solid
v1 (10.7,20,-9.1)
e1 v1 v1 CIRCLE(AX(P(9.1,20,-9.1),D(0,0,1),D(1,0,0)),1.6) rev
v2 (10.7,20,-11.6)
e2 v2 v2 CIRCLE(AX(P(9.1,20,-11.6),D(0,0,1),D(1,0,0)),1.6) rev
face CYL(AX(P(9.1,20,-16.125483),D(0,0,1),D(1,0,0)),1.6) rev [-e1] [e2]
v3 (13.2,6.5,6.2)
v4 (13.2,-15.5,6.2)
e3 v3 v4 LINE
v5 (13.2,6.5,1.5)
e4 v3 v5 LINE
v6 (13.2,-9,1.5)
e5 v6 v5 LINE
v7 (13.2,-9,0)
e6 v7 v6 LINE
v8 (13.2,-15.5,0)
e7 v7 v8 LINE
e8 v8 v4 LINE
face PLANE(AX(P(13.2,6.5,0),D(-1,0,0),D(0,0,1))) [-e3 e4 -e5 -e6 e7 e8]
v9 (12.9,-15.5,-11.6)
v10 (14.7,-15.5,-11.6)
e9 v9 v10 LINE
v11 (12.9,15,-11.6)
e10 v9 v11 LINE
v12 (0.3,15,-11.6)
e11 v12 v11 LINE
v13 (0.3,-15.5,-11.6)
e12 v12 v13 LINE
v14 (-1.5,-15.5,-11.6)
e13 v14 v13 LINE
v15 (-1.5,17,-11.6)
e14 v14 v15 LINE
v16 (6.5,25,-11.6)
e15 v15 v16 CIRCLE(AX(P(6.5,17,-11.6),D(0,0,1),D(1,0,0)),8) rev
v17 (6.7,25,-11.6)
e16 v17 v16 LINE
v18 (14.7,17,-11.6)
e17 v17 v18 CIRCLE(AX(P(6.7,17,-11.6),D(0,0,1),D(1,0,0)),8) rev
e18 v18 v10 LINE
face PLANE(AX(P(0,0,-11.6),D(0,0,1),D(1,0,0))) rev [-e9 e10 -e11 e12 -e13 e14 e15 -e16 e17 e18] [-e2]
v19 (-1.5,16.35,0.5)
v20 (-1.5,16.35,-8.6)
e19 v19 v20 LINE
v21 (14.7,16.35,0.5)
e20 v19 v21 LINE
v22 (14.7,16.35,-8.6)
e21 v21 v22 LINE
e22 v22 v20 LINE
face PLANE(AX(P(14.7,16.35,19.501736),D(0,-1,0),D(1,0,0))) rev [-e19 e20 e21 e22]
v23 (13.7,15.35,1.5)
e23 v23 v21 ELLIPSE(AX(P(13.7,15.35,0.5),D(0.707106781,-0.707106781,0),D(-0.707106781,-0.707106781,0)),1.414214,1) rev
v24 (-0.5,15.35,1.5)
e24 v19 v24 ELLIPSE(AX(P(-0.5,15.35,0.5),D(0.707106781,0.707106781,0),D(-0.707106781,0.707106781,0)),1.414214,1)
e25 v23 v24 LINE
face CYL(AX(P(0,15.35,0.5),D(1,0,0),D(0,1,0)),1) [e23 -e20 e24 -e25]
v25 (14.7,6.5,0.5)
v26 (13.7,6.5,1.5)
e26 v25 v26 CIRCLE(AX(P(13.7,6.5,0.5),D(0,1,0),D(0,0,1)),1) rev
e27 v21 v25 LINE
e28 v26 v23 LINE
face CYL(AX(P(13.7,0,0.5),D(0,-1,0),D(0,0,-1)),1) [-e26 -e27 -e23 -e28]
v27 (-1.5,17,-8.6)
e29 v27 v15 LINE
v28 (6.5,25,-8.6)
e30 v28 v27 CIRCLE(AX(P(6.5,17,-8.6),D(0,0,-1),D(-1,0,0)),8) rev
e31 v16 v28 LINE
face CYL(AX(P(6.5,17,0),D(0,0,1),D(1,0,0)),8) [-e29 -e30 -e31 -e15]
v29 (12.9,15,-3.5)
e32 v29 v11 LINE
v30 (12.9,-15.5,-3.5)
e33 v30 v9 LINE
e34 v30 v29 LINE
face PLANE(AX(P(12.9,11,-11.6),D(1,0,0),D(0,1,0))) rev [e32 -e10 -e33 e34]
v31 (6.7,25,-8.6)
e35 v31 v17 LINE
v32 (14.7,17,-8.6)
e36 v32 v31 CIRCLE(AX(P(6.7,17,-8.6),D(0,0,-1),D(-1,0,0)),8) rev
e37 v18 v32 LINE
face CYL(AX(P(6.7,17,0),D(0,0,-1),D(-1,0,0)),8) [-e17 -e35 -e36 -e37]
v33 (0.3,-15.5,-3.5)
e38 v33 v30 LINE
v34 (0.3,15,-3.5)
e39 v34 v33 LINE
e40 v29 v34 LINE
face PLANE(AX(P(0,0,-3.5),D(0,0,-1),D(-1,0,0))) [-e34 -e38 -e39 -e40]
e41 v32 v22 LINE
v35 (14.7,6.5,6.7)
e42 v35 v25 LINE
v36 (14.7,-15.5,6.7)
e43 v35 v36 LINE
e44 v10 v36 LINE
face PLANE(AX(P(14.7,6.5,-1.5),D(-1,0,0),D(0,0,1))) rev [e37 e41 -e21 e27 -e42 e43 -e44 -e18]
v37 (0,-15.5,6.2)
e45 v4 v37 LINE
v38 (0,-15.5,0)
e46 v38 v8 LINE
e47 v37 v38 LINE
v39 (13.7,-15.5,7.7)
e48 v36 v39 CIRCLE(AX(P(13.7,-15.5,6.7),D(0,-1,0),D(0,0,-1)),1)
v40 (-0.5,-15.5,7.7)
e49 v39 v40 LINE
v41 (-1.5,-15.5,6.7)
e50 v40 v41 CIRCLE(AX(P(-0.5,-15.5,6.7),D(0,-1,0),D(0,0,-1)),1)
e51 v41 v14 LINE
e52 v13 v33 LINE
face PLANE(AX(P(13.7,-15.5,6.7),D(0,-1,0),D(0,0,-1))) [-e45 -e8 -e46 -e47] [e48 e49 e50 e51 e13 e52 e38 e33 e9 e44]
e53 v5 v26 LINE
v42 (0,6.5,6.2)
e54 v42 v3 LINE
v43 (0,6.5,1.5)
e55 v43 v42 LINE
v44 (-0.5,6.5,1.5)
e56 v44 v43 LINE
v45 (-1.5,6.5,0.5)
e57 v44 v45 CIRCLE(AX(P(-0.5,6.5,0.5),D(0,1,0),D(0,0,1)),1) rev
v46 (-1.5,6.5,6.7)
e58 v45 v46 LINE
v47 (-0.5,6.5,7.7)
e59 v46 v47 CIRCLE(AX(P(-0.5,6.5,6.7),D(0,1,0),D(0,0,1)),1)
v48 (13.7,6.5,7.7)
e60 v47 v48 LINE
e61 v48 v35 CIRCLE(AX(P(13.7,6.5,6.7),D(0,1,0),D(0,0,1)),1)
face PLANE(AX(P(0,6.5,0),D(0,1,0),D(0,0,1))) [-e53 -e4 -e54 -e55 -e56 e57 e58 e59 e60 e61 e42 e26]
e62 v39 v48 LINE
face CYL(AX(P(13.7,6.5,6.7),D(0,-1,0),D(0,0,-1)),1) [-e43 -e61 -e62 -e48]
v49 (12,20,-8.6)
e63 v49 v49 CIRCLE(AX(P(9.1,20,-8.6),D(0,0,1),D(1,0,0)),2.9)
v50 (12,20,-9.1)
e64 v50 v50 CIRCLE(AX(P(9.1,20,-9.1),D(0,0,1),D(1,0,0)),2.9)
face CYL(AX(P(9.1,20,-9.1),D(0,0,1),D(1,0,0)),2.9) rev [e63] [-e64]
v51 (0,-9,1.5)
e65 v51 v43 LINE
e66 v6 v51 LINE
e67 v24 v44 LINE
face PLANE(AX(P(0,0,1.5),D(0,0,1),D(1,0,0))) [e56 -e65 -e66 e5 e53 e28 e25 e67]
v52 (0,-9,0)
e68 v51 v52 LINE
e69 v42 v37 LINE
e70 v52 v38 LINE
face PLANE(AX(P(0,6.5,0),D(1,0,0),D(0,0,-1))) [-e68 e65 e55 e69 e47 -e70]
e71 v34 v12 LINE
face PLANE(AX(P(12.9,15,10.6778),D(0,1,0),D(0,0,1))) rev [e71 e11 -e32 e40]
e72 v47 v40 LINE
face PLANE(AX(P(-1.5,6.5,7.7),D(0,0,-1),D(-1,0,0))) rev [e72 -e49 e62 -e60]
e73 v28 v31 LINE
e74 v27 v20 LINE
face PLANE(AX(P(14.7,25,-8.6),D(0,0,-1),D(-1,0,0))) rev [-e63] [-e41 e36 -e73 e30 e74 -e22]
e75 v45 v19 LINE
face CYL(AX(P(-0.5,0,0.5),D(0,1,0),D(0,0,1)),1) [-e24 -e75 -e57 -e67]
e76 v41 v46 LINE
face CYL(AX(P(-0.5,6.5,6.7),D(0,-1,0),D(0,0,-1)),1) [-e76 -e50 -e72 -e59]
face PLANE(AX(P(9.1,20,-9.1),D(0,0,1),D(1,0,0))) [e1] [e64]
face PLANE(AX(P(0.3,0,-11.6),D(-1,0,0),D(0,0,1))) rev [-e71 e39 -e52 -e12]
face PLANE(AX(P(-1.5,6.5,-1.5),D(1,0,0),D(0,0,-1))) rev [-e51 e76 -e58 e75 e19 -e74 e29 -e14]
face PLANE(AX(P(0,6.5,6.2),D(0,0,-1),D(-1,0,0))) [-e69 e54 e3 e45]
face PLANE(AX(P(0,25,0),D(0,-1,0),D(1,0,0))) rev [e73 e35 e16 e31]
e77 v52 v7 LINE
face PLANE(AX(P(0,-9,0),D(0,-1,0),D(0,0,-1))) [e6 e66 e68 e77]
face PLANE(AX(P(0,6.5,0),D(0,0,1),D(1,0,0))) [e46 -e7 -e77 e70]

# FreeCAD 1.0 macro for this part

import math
import FreeCAD as App
import Part
import Sketcher

V = App.Vector


def edges_at(feature, points):
    """Names of the edges that pass closest to the given points."""
    edges = feature.Shape.Edges
    near = lambda p: min(range(len(edges)), key=lambda i: edges[i].distToShape(Part.Vertex(*p))[0])
    return sorted({f"Edge{near(p) + 1}" for p in points})

doc = App.newDocument("Part")
body = doc.addObject("PartDesign::Body", "Body")

# Sketch on XZ plane
sketch1 = body.newObject("Sketcher::SketchObject", "Sketch")
sketch1.AttachmentSupport = (doc.getObject("XZ_Plane"), [""])
sketch1.MapMode = "FlatFace"
sketch1.addGeometry([
    Part.LineSegment(V(-2, -2, 0), V(-2, 8, 0)),  # 0
    Part.LineSegment(V(-2, 8, 0), V(15, 8, 0)),  # 1
    Part.LineSegment(V(15, 8, 0), V(15, -2, 0)),  # 2
    Part.LineSegment(V(15, -2, 0), V(-2, -2, 0)),  # 3
    Part.LineSegment(V(13, 6, 0), V(0, 6, 0)),  # 4
    Part.LineSegment(V(0, 6, 0), V(0, 0, 0)),  # 5
    Part.LineSegment(V(0, 0, 0), V(13, 0, 0)),  # 6
    Part.LineSegment(V(13, 0, 0), V(13, 6, 0)),  # 7
], False)
sketch1.addConstraint([
    Sketcher.Constraint("Coincident", 0, 2, 1, 1),
    Sketcher.Constraint("Coincident", 1, 2, 2, 1),
    Sketcher.Constraint("Coincident", 2, 2, 3, 1),
    Sketcher.Constraint("Coincident", 3, 2, 0, 1),
    Sketcher.Constraint("Coincident", 4, 2, 5, 1),
    Sketcher.Constraint("Coincident", 5, 2, 6, 1),
    Sketcher.Constraint("Coincident", 6, 2, 7, 1),
    Sketcher.Constraint("Coincident", 7, 2, 4, 1),
    Sketcher.Constraint("Vertical", 0),
    Sketcher.Constraint("Horizontal", 1),
    Sketcher.Constraint("Vertical", 2),
    Sketcher.Constraint("Horizontal", 3),
    Sketcher.Constraint("Horizontal", 4),
    Sketcher.Constraint("Vertical", 5),
    Sketcher.Constraint("Horizontal", 6),
    Sketcher.Constraint("Vertical", 7),
    Sketcher.Constraint("Coincident", 5, 2, -1, 1),
    Sketcher.Constraint("DistanceX", 1, 1, 1, 2, 16.2),
    Sketcher.Constraint("DistanceX", 4, 2, 4, 1, 13.2),
    Sketcher.Constraint("DistanceY", 0, 1, 0, 2, 9.2),
    Sketcher.Constraint("DistanceY", 5, 2, 5, 1, 6.2),
    Sketcher.Constraint("DistanceX", 0, 2, -1, 1, 1.5),
    Sketcher.Constraint("DistanceY", -1, 1, 0, 2, 7.7),
])
pad1 = body.newObject("PartDesign::Pad", "Pad")
pad1.Profile = sketch1
pad1.Length = 6.5
pad1.Reversed = True

# Sketch on XY plane
sketch2 = body.newObject("Sketcher::SketchObject", "Sketch001")
sketch2.AttachmentSupport = (doc.getObject("XY_Plane"), [""])
sketch2.MapMode = "FlatFace"
sketch2.AttachmentOffset = App.Placement(V(0, 0, -1.5), App.Rotation())
sketch2.addGeometry([
    Part.LineSegment(V(15, 12, 0), V(15, 0, 0)),
    Part.LineSegment(V(15, 0, 0), V(-2, 0, 0)),
    Part.LineSegment(V(-2, 0, 0), V(-2, 12, 0)),
    Part.LineSegment(V(-2, 12, 0), V(15, 12, 0)),
], False)
sketch2.addConstraint([
    Sketcher.Constraint("Coincident", 0, 2, 1, 1),
    Sketcher.Constraint("Coincident", 1, 2, 2, 1),
    Sketcher.Constraint("Coincident", 2, 2, 3, 1),
    Sketcher.Constraint("Coincident", 3, 2, 0, 1),
    Sketcher.Constraint("Vertical", 0),
    Sketcher.Constraint("Horizontal", 1),
    Sketcher.Constraint("Vertical", 2),
    Sketcher.Constraint("Horizontal", 3),
    Sketcher.Constraint("PointOnObject", 0, 2, -1),
    Sketcher.Constraint("DistanceY", 0, 2, 0, 1, 12.0),
    Sketcher.Constraint("DistanceX", 1, 2, 1, 1, 16.2),
    Sketcher.Constraint("DistanceX", -1, 1, 0, 2, 14.7),
])
pad2 = body.newObject("PartDesign::Pad", "Pad001")
pad2.Profile = sketch2
pad2.Length = 2
pad2.Reversed = True

# Sketch on XY plane
sketch3 = body.newObject("Sketcher::SketchObject", "Sketch002")
sketch3.AttachmentSupport = (doc.getObject("XY_Plane"), [""])
sketch3.MapMode = "FlatFace"
sketch3.AttachmentOffset = App.Placement(V(0, 0, -3.5), App.Rotation())
sketch3.addGeometry([
    Part.LineSegment(V(-1.5, 0, 0), V(-1.5, 12, 0)),  # 0
    Part.LineSegment(V(-1.5, 12, 0), V(14.7, 12, 0)),  # 1
    Part.LineSegment(V(14.7, 12, 0), V(14.7, 0, 0)),  # 2
    Part.LineSegment(V(14.7, 0, 0), V(12.9, 0, 0)),  # 3
    Part.LineSegment(V(12.9, 0, 0), V(12.9, 11, 0)),  # 4
    Part.LineSegment(V(12.9, 11, 0), V(0.3, 11, 0)),  # 5
    Part.LineSegment(V(0.3, 11, 0), V(0.3, 0, 0)),  # 6
    Part.LineSegment(V(0.3, 0, 0), V(-1.5, 0, 0)),  # 7
], False)
sketch3.addConstraint([
    Sketcher.Constraint("Coincident", 0, 2, 1, 1),
    Sketcher.Constraint("Coincident", 1, 2, 2, 1),
    Sketcher.Constraint("Coincident", 2, 2, 3, 1),
    Sketcher.Constraint("Coincident", 3, 2, 4, 1),
    Sketcher.Constraint("Coincident", 4, 2, 5, 1),
    Sketcher.Constraint("Coincident", 5, 2, 6, 1),
    Sketcher.Constraint("Coincident", 6, 2, 7, 1),
    Sketcher.Constraint("Coincident", 7, 2, 0, 1),
    Sketcher.Constraint("Vertical", 0),
    Sketcher.Constraint("Horizontal", 1),
    Sketcher.Constraint("Vertical", 2),
    Sketcher.Constraint("Horizontal", 3),
    Sketcher.Constraint("Vertical", 4),
    Sketcher.Constraint("Horizontal", 5),
    Sketcher.Constraint("Vertical", 6),
    Sketcher.Constraint("Horizontal", 7),
    Sketcher.Constraint("PointOnObject", 2, 2, -1),
    Sketcher.Constraint("PointOnObject", 6, 2, -1),
    Sketcher.Constraint("Equal", 3, 7),
    Sketcher.Constraint("DistanceY", 0, 1, 0, 2, 12.0),
    Sketcher.Constraint("DistanceY", 4, 1, 4, 2, 11.0),
    Sketcher.Constraint("DistanceX", 1, 1, 1, 2, 16.2),
    Sketcher.Constraint("DistanceX", 3, 2, 3, 1, 1.8),
    Sketcher.Constraint("DistanceX", 0, 2, -1, 1, 1.5),
])
pad3 = body.newObject("PartDesign::Pad", "Pad002")
pad3.Profile = sketch3
pad3.Length = 8.1
pad3.Reversed = True

# Sketch on XZ plane
sketch4 = body.newObject("Sketcher::SketchObject", "Sketch003")
sketch4.AttachmentSupport = (doc.getObject("XZ_Plane"), [""])
sketch4.MapMode = "FlatFace"
sketch4.AttachmentOffset = App.Placement(V(0, 0, -12), App.Rotation())
sketch4.addGeometry([
    Part.LineSegment(V(-1.5, -11.6, 0), V(-1.5, -8.6, 0)),
    Part.LineSegment(V(-1.5, -8.6, 0), V(14.7, -8.6, 0)),
    Part.LineSegment(V(14.7, -8.6, 0), V(14.7, -11.6, 0)),
    Part.LineSegment(V(14.7, -11.6, 0), V(-1.5, -11.6, 0)),
], False)
sketch4.addConstraint([
    Sketcher.Constraint("Coincident", 0, 2, 1, 1),
    Sketcher.Constraint("Coincident", 1, 2, 2, 1),
    Sketcher.Constraint("Coincident", 2, 2, 3, 1),
    Sketcher.Constraint("Coincident", 3, 2, 0, 1),
    Sketcher.Constraint("Vertical", 0),
    Sketcher.Constraint("Horizontal", 1),
    Sketcher.Constraint("Vertical", 2),
    Sketcher.Constraint("Horizontal", 3),
    Sketcher.Constraint("DistanceY", 0, 1, 0, 2, 3.0),
    Sketcher.Constraint("DistanceX", 1, 1, 1, 2, 16.2),
    Sketcher.Constraint("DistanceX", 0, 2, -1, 1, 1.5),
    Sketcher.Constraint("DistanceY", 0, 2, -1, 1, 8.6),
])
pad4 = body.newObject("PartDesign::Pad", "Pad003")
pad4.Profile = sketch4
pad4.Length = 13
pad4.Reversed = True

# Sketch on XY plane
sketch5 = body.newObject("Sketcher::SketchObject", "Sketch004")
sketch5.AttachmentSupport = (doc.getObject("XY_Plane"), [""])
sketch5.MapMode = "FlatFace"
sketch5.AttachmentOffset = App.Placement(V(0, 0, -8.6), App.Rotation())
sketch5.addGeometry(Part.Circle(V(9.1, 20, 0), V(0, 0, 1), 1.6), False)
sketch5.addConstraint([
    Sketcher.Constraint("Diameter", 0, 3.2),
    Sketcher.Constraint("DistanceY", -1, 1, 0, 3, 20.0),
    Sketcher.Constraint("DistanceX", -1, 1, 0, 3, 9.1),
])
pocket1 = body.newObject("PartDesign::Pocket", "Pocket")
pocket1.Profile = sketch5
pocket1.Length = 3

# Sketch on XY plane
sketch6 = body.newObject("Sketcher::SketchObject", "Sketch005")
sketch6.AttachmentSupport = (doc.getObject("XY_Plane"), [""])
sketch6.MapMode = "FlatFace"
sketch6.AttachmentOffset = App.Placement(V(0, 0, -1.5), App.Rotation())
sketch6.addGeometry([
    Part.LineSegment(V(-1.5, 8.5, 0), V(-1.5, 6.5, 0)),
    Part.LineSegment(V(-1.5, 6.5, 0), V(14.7, 6.5, 0)),
    Part.LineSegment(V(14.7, 6.5, 0), V(14.7, 8.5, 0)),
    Part.LineSegment(V(14.7, 8.5, 0), V(-1.5, 8.5, 0)),
], False)
sketch6.addConstraint([
    Sketcher.Constraint("Coincident", 0, 2, 1, 1),
    Sketcher.Constraint("Coincident", 1, 2, 2, 1),
    Sketcher.Constraint("Coincident", 2, 2, 3, 1),
    Sketcher.Constraint("Coincident", 3, 2, 0, 1),
    Sketcher.Constraint("Vertical", 0),
    Sketcher.Constraint("Horizontal", 1),
    Sketcher.Constraint("Vertical", 2),
    Sketcher.Constraint("Horizontal", 3),
    Sketcher.Constraint("DistanceY", 0, 2, 0, 1, 2.0),
    Sketcher.Constraint("DistanceX", 1, 1, 1, 2, 16.2),
    Sketcher.Constraint("DistanceX", 0, 2, -1, 1, 1.5),
    Sketcher.Constraint("DistanceY", -1, 1, 0, 2, 6.5),
])
pad5 = body.newObject("PartDesign::Pad", "Pad004")
pad5.Profile = sketch6
pad5.Length = 3

# Sketch on XY plane
sketch7 = body.newObject("Sketcher::SketchObject", "Sketch006")
sketch7.AttachmentSupport = (doc.getObject("XY_Plane"), [""])
sketch7.MapMode = "FlatFace"
sketch7.AttachmentOffset = App.Placement(V(0, 0, -8.6), App.Rotation())
sketch7.addGeometry(Part.Circle(V(9.1, 20, 0), V(0, 0, 1), 2.9), False)
sketch7.addConstraint([
    Sketcher.Constraint("Diameter", 0, 5.8),
    Sketcher.Constraint("DistanceY", -1, 1, 0, 3, 20.0),
    Sketcher.Constraint("DistanceX", -1, 1, 0, 3, 9.1),
])
pocket2 = body.newObject("PartDesign::Pocket", "Pocket001")
pocket2.Profile = sketch7
pocket2.Length = 0.5
doc.recompute()

fillet = body.newObject("PartDesign::Fillet", "Fillet")
fillet.Base = (pocket2, edges_at(pocket2, [(14.7, 3.25, 7.7), (-1.5, 3.25, 7.7)]))
fillet.Radius = 1
doc.recompute()

fillet2 = body.newObject("PartDesign::Fillet", "Fillet001")
fillet2.Base = (fillet, edges_at(fillet, [(14.7, 25, -10.1), (-1.5, 25, -10.1)]))
fillet2.Radius = 8

# Sketch on XZ plane
sketch8 = body.newObject("Sketcher::SketchObject", "Sketch007")
sketch8.AttachmentSupport = (doc.getObject("XZ_Plane"), [""])
sketch8.MapMode = "FlatFace"
sketch8.addGeometry([
    Part.LineSegment(V(13.7, 7.7, 0), V(-0.5, 7.7, 0)),  # 0
    Part.ArcOfCircle(Part.Circle(V(-0.5, 6.7, 0), V(0, 0, 1), 1), math.radians(90), math.radians(180)),  # 1
    Part.LineSegment(V(-1.5, 6.7, 0), V(-1.5, -11.6, 0)),  # 2
    Part.LineSegment(V(-1.5, -11.6, 0), V(0.3, -11.6, 0)),  # 3
    Part.LineSegment(V(0.3, -11.6, 0), V(0.3, -3.5, 0)),  # 4
    Part.LineSegment(V(0.3, -3.5, 0), V(12.9, -3.5, 0)),  # 5
    Part.LineSegment(V(12.9, -3.5, 0), V(12.9, -11.6, 0)),  # 6
    Part.LineSegment(V(12.9, -11.6, 0), V(14.7, -11.6, 0)),  # 7
    Part.LineSegment(V(14.7, -11.6, 0), V(14.7, 6.7, 0)),  # 8
    Part.ArcOfCircle(Part.Circle(V(13.7, 6.7, 0), V(0, 0, 1), 1), math.radians(0), math.radians(90)),  # 9
    Part.LineSegment(V(13.2, 0, 0), V(0, 0, 0)),  # 10
    Part.LineSegment(V(0, 0, 0), V(0, 6.2, 0)),  # 11
    Part.LineSegment(V(0, 6.2, 0), V(13.2, 6.2, 0)),  # 12
    Part.LineSegment(V(13.2, 6.2, 0), V(13.2, 0, 0)),  # 13
], False)
sketch8.addConstraint([
    Sketcher.Constraint("Tangent", 0, 2, 1, 1),
    Sketcher.Constraint("Tangent", 1, 2, 2, 1),
    Sketcher.Constraint("Coincident", 2, 2, 3, 1),
    Sketcher.Constraint("Coincident", 3, 2, 4, 1),
    Sketcher.Constraint("Coincident", 4, 2, 5, 1),
    Sketcher.Constraint("Coincident", 5, 2, 6, 1),
    Sketcher.Constraint("Coincident", 6, 2, 7, 1),
    Sketcher.Constraint("Coincident", 7, 2, 8, 1),
    Sketcher.Constraint("Tangent", 8, 2, 9, 1),
    Sketcher.Constraint("Tangent", 9, 2, 0, 1),
    Sketcher.Constraint("Coincident", 10, 2, 11, 1),
    Sketcher.Constraint("Coincident", 11, 2, 12, 1),
    Sketcher.Constraint("Coincident", 12, 2, 13, 1),
    Sketcher.Constraint("Coincident", 13, 2, 10, 1),
    Sketcher.Constraint("Horizontal", 0),
    Sketcher.Constraint("Vertical", 2),
    Sketcher.Constraint("Horizontal", 3),
    Sketcher.Constraint("Vertical", 4),
    Sketcher.Constraint("Horizontal", 5),
    Sketcher.Constraint("Vertical", 6),
    Sketcher.Constraint("Horizontal", 7),
    Sketcher.Constraint("Vertical", 8),
    Sketcher.Constraint("Horizontal", 10),
    Sketcher.Constraint("Vertical", 11),
    Sketcher.Constraint("Horizontal", 12),
    Sketcher.Constraint("Vertical", 13),
    Sketcher.Constraint("Coincident", 10, 2, -1, 1),
    Sketcher.Constraint("Equal", 1, 9),
    Sketcher.Constraint("Horizontal", 3, 2, 6, 2),
    Sketcher.Constraint("Equal", 3, 7),
    Sketcher.Constraint("Radius", 1, 1.0),
    Sketcher.Constraint("DistanceX", 0, 2, 0, 1, 14.2),
    Sketcher.Constraint("DistanceX", 3, 1, 3, 2, 1.8),
    Sketcher.Constraint("DistanceX", 10, 2, 10, 1, 13.2),
    Sketcher.Constraint("DistanceY", 2, 2, 2, 1, 18.3),
    Sketcher.Constraint("DistanceY", 4, 1, 4, 2, 8.1),
    Sketcher.Constraint("DistanceY", 11, 1, 11, 2, 6.2),
    Sketcher.Constraint("DistanceX", 1, 3, -1, 1, 0.5),
    Sketcher.Constraint("DistanceY", -1, 1, 1, 3, 6.7),
])
pad6 = body.newObject("PartDesign::Pad", "Pad005")
pad6.Profile = sketch8
pad6.Length = 3.5

# Sketch on XZ plane
sketch9 = body.newObject("Sketcher::SketchObject", "Sketch008")
sketch9.AttachmentSupport = (doc.getObject("XZ_Plane"), [""])
sketch9.MapMode = "FlatFace"
sketch9.AttachmentOffset = App.Placement(V(0, 0, -6.5), App.Rotation())
sketch9.addGeometry([
    Part.LineSegment(V(0, 1.5, 0), V(0, 0, 0)),
    Part.LineSegment(V(0, 0, 0), V(13.2, 0, 0)),
    Part.LineSegment(V(13.2, 0, 0), V(13.2, 1.5, 0)),
    Part.LineSegment(V(13.2, 1.5, 0), V(0, 1.5, 0)),
], False)
sketch9.addConstraint([
    Sketcher.Constraint("Coincident", 0, 2, 1, 1),
    Sketcher.Constraint("Coincident", 1, 2, 2, 1),
    Sketcher.Constraint("Coincident", 2, 2, 3, 1),
    Sketcher.Constraint("Coincident", 3, 2, 0, 1),
    Sketcher.Constraint("Vertical", 0),
    Sketcher.Constraint("Horizontal", 1),
    Sketcher.Constraint("Vertical", 2),
    Sketcher.Constraint("Horizontal", 3),
    Sketcher.Constraint("Coincident", 0, 2, -1, 1),
    Sketcher.Constraint("DistanceX", 1, 1, 1, 2, 13.2),
    Sketcher.Constraint("DistanceY", 0, 2, 0, 1, 1.5),
])
pad7 = body.newObject("PartDesign::Pad", "Pad006")
pad7.Profile = sketch9
pad7.Length = 3.5

# Sketch on XZ plane
sketch10 = body.newObject("Sketcher::SketchObject", "Sketch009")
sketch10.AttachmentSupport = (doc.getObject("XZ_Plane"), [""])
sketch10.MapMode = "FlatFace"
sketch10.AttachmentOffset = App.Placement(V(0, 0, 3.5), App.Rotation())
sketch10.addGeometry([
    Part.LineSegment(V(13.7, 7.7, 0), V(-0.5, 7.7, 0)),  # 0
    Part.ArcOfCircle(Part.Circle(V(-0.5, 6.7, 0), V(0, 0, 1), 1), math.radians(90), math.radians(180)),  # 1
    Part.LineSegment(V(-1.5, 6.7, 0), V(-1.5, -11.6, 0)),  # 2
    Part.LineSegment(V(-1.5, -11.6, 0), V(0.3, -11.6, 0)),  # 3
    Part.LineSegment(V(0.3, -11.6, 0), V(0.3, -3.5, 0)),  # 4
    Part.LineSegment(V(0.3, -3.5, 0), V(12.9, -3.5, 0)),  # 5
    Part.LineSegment(V(12.9, -3.5, 0), V(12.9, -11.6, 0)),  # 6
    Part.LineSegment(V(12.9, -11.6, 0), V(14.7, -11.6, 0)),  # 7
    Part.LineSegment(V(14.7, -11.6, 0), V(14.7, 6.7, 0)),  # 8
    Part.ArcOfCircle(Part.Circle(V(13.7, 6.7, 0), V(0, 0, 1), 1), math.radians(0), math.radians(90)),  # 9
    Part.LineSegment(V(13.2, 0, 0), V(0, 0, 0)),  # 10
    Part.LineSegment(V(0, 0, 0), V(0, 6.2, 0)),  # 11
    Part.LineSegment(V(0, 6.2, 0), V(13.2, 6.2, 0)),  # 12
    Part.LineSegment(V(13.2, 6.2, 0), V(13.2, 0, 0)),  # 13
], False)
sketch10.addConstraint([
    Sketcher.Constraint("Tangent", 0, 2, 1, 1),
    Sketcher.Constraint("Tangent", 1, 2, 2, 1),
    Sketcher.Constraint("Coincident", 2, 2, 3, 1),
    Sketcher.Constraint("Coincident", 3, 2, 4, 1),
    Sketcher.Constraint("Coincident", 4, 2, 5, 1),
    Sketcher.Constraint("Coincident", 5, 2, 6, 1),
    Sketcher.Constraint("Coincident", 6, 2, 7, 1),
    Sketcher.Constraint("Coincident", 7, 2, 8, 1),
    Sketcher.Constraint("Tangent", 8, 2, 9, 1),
    Sketcher.Constraint("Tangent", 9, 2, 0, 1),
    Sketcher.Constraint("Coincident", 10, 2, 11, 1),
    Sketcher.Constraint("Coincident", 11, 2, 12, 1),
    Sketcher.Constraint("Coincident", 12, 2, 13, 1),
    Sketcher.Constraint("Coincident", 13, 2, 10, 1),
    Sketcher.Constraint("Horizontal", 0),
    Sketcher.Constraint("Vertical", 2),
    Sketcher.Constraint("Horizontal", 3),
    Sketcher.Constraint("Vertical", 4),
    Sketcher.Constraint("Horizontal", 5),
    Sketcher.Constraint("Vertical", 6),
    Sketcher.Constraint("Horizontal", 7),
    Sketcher.Constraint("Vertical", 8),
    Sketcher.Constraint("Horizontal", 10),
    Sketcher.Constraint("Vertical", 11),
    Sketcher.Constraint("Horizontal", 12),
    Sketcher.Constraint("Vertical", 13),
    Sketcher.Constraint("Coincident", 10, 2, -1, 1),
    Sketcher.Constraint("Equal", 1, 9),
    Sketcher.Constraint("Horizontal", 3, 2, 6, 2),
    Sketcher.Constraint("Equal", 3, 7),
    Sketcher.Constraint("Radius", 1, 1.0),
    Sketcher.Constraint("DistanceX", 0, 2, 0, 1, 14.2),
    Sketcher.Constraint("DistanceX", 3, 1, 3, 2, 1.8),
    Sketcher.Constraint("DistanceX", 10, 2, 10, 1, 13.2),
    Sketcher.Constraint("DistanceY", 2, 2, 2, 1, 18.3),
    Sketcher.Constraint("DistanceY", 4, 1, 4, 2, 8.1),
    Sketcher.Constraint("DistanceY", 11, 1, 11, 2, 6.2),
    Sketcher.Constraint("DistanceX", 1, 3, -1, 1, 0.5),
    Sketcher.Constraint("DistanceY", -1, 1, 1, 3, 6.7),
])
pad8 = body.newObject("PartDesign::Pad", "Pad007")
pad8.Profile = sketch10
pad8.Length = 12

# Sketch on XZ plane
sketch11 = body.newObject("Sketcher::SketchObject", "Sketch010")
sketch11.AttachmentSupport = (doc.getObject("XZ_Plane"), [""])
sketch11.MapMode = "FlatFace"
sketch11.AttachmentOffset = App.Placement(V(0, 0, -3), App.Rotation())
sketch11.addGeometry([
    Part.LineSegment(V(0, 1.5, 0), V(0, 0, 0)),
    Part.LineSegment(V(0, 0, 0), V(13.2, 0, 0)),
    Part.LineSegment(V(13.2, 0, 0), V(13.2, 1.5, 0)),
    Part.LineSegment(V(13.2, 1.5, 0), V(0, 1.5, 0)),
], False)
sketch11.addConstraint([
    Sketcher.Constraint("Coincident", 0, 2, 1, 1),
    Sketcher.Constraint("Coincident", 1, 2, 2, 1),
    Sketcher.Constraint("Coincident", 2, 2, 3, 1),
    Sketcher.Constraint("Coincident", 3, 2, 0, 1),
    Sketcher.Constraint("Vertical", 0),
    Sketcher.Constraint("Horizontal", 1),
    Sketcher.Constraint("Vertical", 2),
    Sketcher.Constraint("Horizontal", 3),
    Sketcher.Constraint("Coincident", 0, 2, -1, 1),
    Sketcher.Constraint("DistanceX", 1, 1, 1, 2, 13.2),
    Sketcher.Constraint("DistanceY", 0, 2, 0, 1, 1.5),
])
pad9 = body.newObject("PartDesign::Pad", "Pad008")
pad9.Profile = sketch11
pad9.Length = 12

# Sketch on XY plane
sketch12 = body.newObject("Sketcher::SketchObject", "Sketch011")
sketch12.AttachmentSupport = (doc.getObject("XY_Plane"), [""])
sketch12.MapMode = "FlatFace"
sketch12.AttachmentOffset = App.Placement(V(0, 0, -8.6), App.Rotation())
sketch12.addGeometry([
    Part.LineSegment(V(-2, 16, 0), V(-2, 8, 0)),
    Part.LineSegment(V(-2, 8, 0), V(15, 8, 0)),
    Part.LineSegment(V(15, 8, 0), V(15, 16, 0)),
    Part.LineSegment(V(15, 16, 0), V(-2, 16, 0)),
], False)
sketch12.addConstraint([
    Sketcher.Constraint("Coincident", 0, 2, 1, 1),
    Sketcher.Constraint("Coincident", 1, 2, 2, 1),
    Sketcher.Constraint("Coincident", 2, 2, 3, 1),
    Sketcher.Constraint("Coincident", 3, 2, 0, 1),
    Sketcher.Constraint("Vertical", 0),
    Sketcher.Constraint("Horizontal", 1),
    Sketcher.Constraint("Vertical", 2),
    Sketcher.Constraint("Horizontal", 3),
    Sketcher.Constraint("DistanceX", 1, 1, 1, 2, 16.2),
    Sketcher.Constraint("DistanceY", 0, 2, 0, 1, 7.85),
    Sketcher.Constraint("DistanceX", 0, 2, -1, 1, 1.5),
    Sketcher.Constraint("DistanceY", -1, 1, 0, 2, 8.5),
])
pad10 = body.newObject("PartDesign::Pad", "Pad009")
pad10.Profile = sketch12
pad10.Length = 10.1

# Sketch on XY plane
sketch13 = body.newObject("Sketcher::SketchObject", "Sketch012")
sketch13.AttachmentSupport = (doc.getObject("XY_Plane"), [""])
sketch13.MapMode = "FlatFace"
sketch13.AttachmentOffset = App.Placement(V(0, 0, -11.6), App.Rotation())
sketch13.addGeometry([
    Part.LineSegment(V(13, 15, 0), V(13, 8, 0)),
    Part.LineSegment(V(13, 8, 0), V(0, 8, 0)),
    Part.LineSegment(V(0, 8, 0), V(0, 15, 0)),
    Part.LineSegment(V(0, 15, 0), V(13, 15, 0)),
], False)
sketch13.addConstraint([
    Sketcher.Constraint("Coincident", 0, 2, 1, 1),
    Sketcher.Constraint("Coincident", 1, 2, 2, 1),
    Sketcher.Constraint("Coincident", 2, 2, 3, 1),
    Sketcher.Constraint("Coincident", 3, 2, 0, 1),
    Sketcher.Constraint("Vertical", 0),
    Sketcher.Constraint("Horizontal", 1),
    Sketcher.Constraint("Vertical", 2),
    Sketcher.Constraint("Horizontal", 3),
    Sketcher.Constraint("DistanceX", 1, 2, 1, 1, 12.6),
    Sketcher.Constraint("DistanceY", 0, 2, 0, 1, 6.5),
    Sketcher.Constraint("DistanceY", -1, 1, 2, 2, 15.0),
    Sketcher.Constraint("DistanceX", -1, 1, 0, 2, 12.9),
])
pocket3 = body.newObject("PartDesign::Pocket", "Pocket002")
pocket3.Profile = sketch13
pocket3.Length = 8.1
pocket3.Reversed = True
doc.recompute()

fillet3 = body.newObject("PartDesign::Fillet", "Fillet002")
fillet3.Base = (pocket3, edges_at(pocket3, [(6.6, 16.35, 1.5), (14.7, 11.425, 1.5), (-1.5, 11.425, 1.5)]))
fillet3.Radius = 1

doc.recompute()
